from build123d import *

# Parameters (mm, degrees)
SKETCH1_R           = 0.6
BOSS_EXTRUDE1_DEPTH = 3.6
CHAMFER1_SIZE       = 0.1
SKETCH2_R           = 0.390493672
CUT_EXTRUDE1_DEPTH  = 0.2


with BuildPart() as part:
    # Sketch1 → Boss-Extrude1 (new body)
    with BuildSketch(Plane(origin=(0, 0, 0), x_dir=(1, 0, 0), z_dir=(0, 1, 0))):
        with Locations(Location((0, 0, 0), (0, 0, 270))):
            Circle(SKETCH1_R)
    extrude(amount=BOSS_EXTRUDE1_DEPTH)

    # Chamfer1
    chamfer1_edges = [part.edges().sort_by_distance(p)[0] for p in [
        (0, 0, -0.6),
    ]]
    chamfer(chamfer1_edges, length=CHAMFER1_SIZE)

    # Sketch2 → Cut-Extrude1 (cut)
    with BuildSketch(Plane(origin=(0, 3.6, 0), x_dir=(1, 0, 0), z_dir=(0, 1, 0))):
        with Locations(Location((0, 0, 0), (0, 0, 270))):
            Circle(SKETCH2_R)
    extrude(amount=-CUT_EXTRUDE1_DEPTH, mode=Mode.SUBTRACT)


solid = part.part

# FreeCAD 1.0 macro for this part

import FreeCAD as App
import Part
import Sketcher

V = App.Vector


def edges_at(feature, points):
    """Names of the edges that pass closest to the given points."""
    edges = feature.Shape.Edges
    near = lambda p: min(range(len(edges)), key=lambda i: edges[i].distToShape(Part.Vertex(*p))[0])
    return sorted({f"Edge{near(p) + 1}" for p in points})

doc = App.newDocument("Part")
body = doc.addObject("PartDesign::Body", "Body")

# Sketch on XZ plane
sketch1 = body.newObject("Sketcher::SketchObject", "Sketch")
sketch1.AttachmentSupport = (doc.getObject("XZ_Plane"), [""])
sketch1.MapMode = "FlatFace"
sketch1.addGeometry(Part.Circle(V(0, 0, 0), V(0, 0, 1), 0.6), False)
sketch1.addConstraint([
    Sketcher.Constraint("Coincident", 0, 3, -1, 1),
    Sketcher.Constraint("Diameter", 0, 1.2),
])
pad1 = body.newObject("PartDesign::Pad", "Pad")
pad1.Profile = sketch1
pad1.Length = 3.6
pad1.Reversed = True
doc.recompute()

chamfer = body.newObject("PartDesign::Chamfer", "Chamfer")
chamfer.Base = (pad1, edges_at(pad1, [(0, 0, -0.6)]))
chamfer.Size = 0.1

# Sketch on XZ plane
sketch2 = body.newObject("Sketcher::SketchObject", "Sketch001")
sketch2.AttachmentSupport = (doc.getObject("XZ_Plane"), [""])
sketch2.MapMode = "FlatFace"
sketch2.AttachmentOffset = App.Placement(V(0, 0, -3.6), App.Rotation())
sketch2.addGeometry(Part.Circle(V(0, 0, 0), V(0, 0, 1), 0.390494), False)
sketch2.addConstraint([
    Sketcher.Constraint("Coincident", 0, 3, -1, 1),
    Sketcher.Constraint("Diameter", 0, 0.780987),
])
pocket1 = body.newObject("PartDesign::Pocket", "Pocket")
pocket1.Profile = sketch2
pocket1.Length = 0.2
pocket1.Reversed = True

doc.recompute()
